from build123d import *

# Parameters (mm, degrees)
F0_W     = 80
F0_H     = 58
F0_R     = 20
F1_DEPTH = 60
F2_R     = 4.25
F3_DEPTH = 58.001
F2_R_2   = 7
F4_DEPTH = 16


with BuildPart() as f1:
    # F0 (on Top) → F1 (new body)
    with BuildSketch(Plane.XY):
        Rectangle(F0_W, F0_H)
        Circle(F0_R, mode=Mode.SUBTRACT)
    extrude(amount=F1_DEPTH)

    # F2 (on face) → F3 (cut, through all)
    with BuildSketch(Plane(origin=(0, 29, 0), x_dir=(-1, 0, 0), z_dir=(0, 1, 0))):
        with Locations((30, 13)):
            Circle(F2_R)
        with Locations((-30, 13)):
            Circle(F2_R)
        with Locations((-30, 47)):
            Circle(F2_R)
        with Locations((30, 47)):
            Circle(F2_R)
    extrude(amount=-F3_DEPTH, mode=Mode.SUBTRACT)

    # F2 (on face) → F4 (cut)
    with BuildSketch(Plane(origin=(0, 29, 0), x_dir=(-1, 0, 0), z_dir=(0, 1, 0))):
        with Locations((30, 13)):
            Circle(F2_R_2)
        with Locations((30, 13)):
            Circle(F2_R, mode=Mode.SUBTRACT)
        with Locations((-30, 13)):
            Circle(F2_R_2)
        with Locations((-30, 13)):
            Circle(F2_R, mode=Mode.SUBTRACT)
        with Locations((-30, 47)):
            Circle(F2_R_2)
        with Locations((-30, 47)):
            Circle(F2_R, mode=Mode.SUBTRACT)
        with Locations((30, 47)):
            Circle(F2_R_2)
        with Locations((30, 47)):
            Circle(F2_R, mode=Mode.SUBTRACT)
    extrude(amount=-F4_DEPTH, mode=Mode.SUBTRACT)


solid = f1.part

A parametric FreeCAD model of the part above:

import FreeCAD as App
import Part
import Sketcher
from FreeCAD import Vector


def add_polygon(sketch, points):
    """Adds a closed chain of lines whose ends are joined by coincident constraints."""
    first, n = sketch.GeometryCount, len(points)
    for a, b in zip(points, points[1:] + points[:1]):
        sketch.addGeometry(Part.LineSegment(App.Vector(*a, 0), App.Vector(*b, 0)), False)
    for i in range(n):
        sketch.addConstraint(Sketcher.Constraint("Coincident", first + i, 2, first + (i + 1) % n, 1))

doc = App.newDocument("Part")
body = doc.addObject("PartDesign::Body", "Body")

# Sketch on XY plane
sketch1 = doc.addObject("Sketcher::SketchObject", "Sketch")
body.addObject(sketch1)
sketch1.AttachmentSupport = (doc.XY_Plane, [""])
sketch1.MapMode = "FlatFace"
add_polygon(sketch1, [(-40, 29), (-40, -29), (40, -29), (40, 29)])  # lines 0-3
sketch1.addGeometry(Part.Circle(Vector(0, 0, 0), Vector(0, 0, 1), 20), False)  # 4
sketch1.addConstraint([
    Sketcher.Constraint("Vertical", 0),
    Sketcher.Constraint("Horizontal", 1),
    Sketcher.Constraint("Vertical", 2),
    Sketcher.Constraint("Horizontal", 3),
    Sketcher.Constraint("Coincident", 4, 3, -1, 1),
    Sketcher.Constraint("Symmetric", 0, 2, 2, 2, -1, 1),
    Sketcher.Constraint("Diameter", 4, 40.0),
    Sketcher.Constraint("DistanceX", 1, 1, 1, 2, 80.0),
    Sketcher.Constraint("DistanceY", 0, 2, 0, 1, 58.0),
])
pad1 = doc.addObject("PartDesign::Pad", "Pad")
body.addObject(pad1)
pad1.Profile = sketch1
pad1.Length = 60

# Sketch on XZ plane
sketch2 = doc.addObject("Sketcher::SketchObject", "Sketch001")
body.addObject(sketch2)
sketch2.AttachmentSupport = (doc.XZ_Plane, [""])
sketch2.MapMode = "FlatFace"
sketch2.AttachmentOffset = App.Placement(Vector(0, 0, -29), App.Rotation())
sketch2.addGeometry([
    Part.Circle(Vector(-30, 13, 0), Vector(0, 0, 1), 4.2),
    Part.Circle(Vector(30, 13, 0), Vector(0, 0, 1), 4.2),
    Part.Circle(Vector(30, 47, 0), Vector(0, 0, 1), 4.2),
    Part.Circle(Vector(-30, 47, 0), Vector(0, 0, 1), 4.2),
], False)
sketch2.addConstraint([
    Sketcher.Constraint("Equal", 0, 1),
    Sketcher.Constraint("Equal", 1, 2),
    Sketcher.Constraint("Equal", 2, 3),
    Sketcher.Constraint("Symmetric", 0, 3, 1, 3, -2),
    Sketcher.Constraint("Symmetric", 2, 3, 3, 3, -2),
    Sketcher.Constraint("Vertical", 1, 3, 2, 3),
    Sketcher.Constraint("Diameter", 0, 8.5),
    Sketcher.Constraint("DistanceX", 0, 3, -1, 1, 30.0),
    Sketcher.Constraint("DistanceY", -1, 1, 0, 3, 13.0),
    Sketcher.Constraint("DistanceY", -1, 1, 2, 3, 47.0),
])
pocket1 = doc.addObject("PartDesign::Pocket", "Pocket")
body.addObject(pocket1)
pocket1.Profile = sketch2
pocket1.Type = "ThroughAll"
pocket1.Reversed = True

# Sketch on XZ plane
sketch3 = doc.addObject("Sketcher::SketchObject", "Sketch002")
body.addObject(sketch3)
sketch3.AttachmentSupport = (doc.XZ_Plane, [""])
sketch3.MapMode = "FlatFace"
sketch3.AttachmentOffset = App.Placement(Vector(0, 0, -29), App.Rotation())
sketch3.addGeometry([
    Part.Circle(Vector(-30, 13, 0), Vector(0, 0, 1), 7),  # 0
    Part.Circle(Vector(-30, 13, 0), Vector(0, 0, 1), 4.2),  # 1
    Part.Circle(Vector(30, 13, 0), Vector(0, 0, 1), 7),  # 2
    Part.Circle(Vector(30, 13, 0), Vector(0, 0, 1), 4.2),  # 3
    Part.Circle(Vector(30, 47, 0), Vector(0, 0, 1), 7),  # 4
    Part.Circle(Vector(30, 47, 0), Vector(0, 0, 1), 4.2),  # 5
    Part.Circle(Vector(-30, 47, 0), Vector(0, 0, 1), 7),  # 6
    Part.Circle(Vector(-30, 47, 0), Vector(0, 0, 1), 4.2),  # 7
], False)
sketch3.addConstraint([
    Sketcher.Constraint("Coincident", 1, 3, 0, 3),
    Sketcher.Constraint("Coincident", 3, 3, 2, 3),
    Sketcher.Constraint("Coincident", 5, 3, 4, 3),
    Sketcher.Constraint("Coincident", 7, 3, 6, 3),
    Sketcher.Constraint("Equal", 0, 2),
    Sketcher.Constraint("Equal", 1, 3),
    Sketcher.Constraint("Equal", 2, 4),
    Sketcher.Constraint("Equal", 3, 5),
    Sketcher.Constraint("Equal", 4, 6),
    Sketcher.Constraint("Equal", 5, 7),
    Sketcher.Constraint("Symmetric", 0, 3, 2, 3, -2),
    Sketcher.Constraint("Symmetric", 4, 3, 6, 3, -2),
    Sketcher.Constraint("Vertical", 3, 3, 4, 3),
    Sketcher.Constraint("Diameter", 0, 14.0),
    Sketcher.Constraint("Diameter", 1, 8.5),
    Sketcher.Constraint("DistanceX", 0, 3, -1, 1, 30.0),
    Sketcher.Constraint("DistanceY", -1, 1, 0, 3, 13.0),
    Sketcher.Constraint("DistanceY", -1, 1, 4, 3, 47.0),
])
pocket2 = doc.addObject("PartDesign::Pocket", "Pocket001")
body.addObject(pocket2)
pocket2.Profile = sketch3
pocket2.Length = 16
pocket2.Reversed = True

doc.recompute()
